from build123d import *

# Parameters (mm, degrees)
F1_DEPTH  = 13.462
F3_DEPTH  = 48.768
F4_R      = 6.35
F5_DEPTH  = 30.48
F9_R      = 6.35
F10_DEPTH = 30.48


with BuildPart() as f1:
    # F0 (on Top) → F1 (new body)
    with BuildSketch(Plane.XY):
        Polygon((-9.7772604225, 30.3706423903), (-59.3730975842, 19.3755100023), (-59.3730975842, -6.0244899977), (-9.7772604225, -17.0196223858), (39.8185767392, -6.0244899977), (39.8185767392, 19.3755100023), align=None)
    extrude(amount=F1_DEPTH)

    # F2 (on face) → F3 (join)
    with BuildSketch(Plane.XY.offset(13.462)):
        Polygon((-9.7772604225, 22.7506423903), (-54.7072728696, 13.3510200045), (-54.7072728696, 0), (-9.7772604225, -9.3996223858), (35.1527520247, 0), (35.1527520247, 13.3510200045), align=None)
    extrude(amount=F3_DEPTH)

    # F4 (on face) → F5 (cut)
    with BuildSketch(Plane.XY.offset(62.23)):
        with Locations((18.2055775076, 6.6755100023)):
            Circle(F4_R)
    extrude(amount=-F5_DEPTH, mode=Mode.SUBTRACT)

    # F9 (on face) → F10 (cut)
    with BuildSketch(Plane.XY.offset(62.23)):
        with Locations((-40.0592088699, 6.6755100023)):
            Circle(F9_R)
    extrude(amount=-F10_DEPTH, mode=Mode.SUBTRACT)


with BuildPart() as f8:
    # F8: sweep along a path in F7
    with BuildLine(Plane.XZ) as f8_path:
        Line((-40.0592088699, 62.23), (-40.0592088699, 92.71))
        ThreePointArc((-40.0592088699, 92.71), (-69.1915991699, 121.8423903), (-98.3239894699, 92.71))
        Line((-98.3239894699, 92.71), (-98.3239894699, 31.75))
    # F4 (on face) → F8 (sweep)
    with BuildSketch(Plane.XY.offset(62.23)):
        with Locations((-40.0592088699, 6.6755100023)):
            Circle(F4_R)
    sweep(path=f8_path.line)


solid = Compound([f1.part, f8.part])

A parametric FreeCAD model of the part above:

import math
import FreeCAD as App
import Part
import Sketcher
from FreeCAD import Vector
Q = App.Units.Quantity


def add_polygon(sketch, points):
    """Adds a closed chain of lines whose ends are joined by coincident constraints."""
    first, n = sketch.GeometryCount, len(points)
    for a, b in zip(points, points[1:] + points[:1]):
        sketch.addGeometry(Part.LineSegment(App.Vector(*a, 0), App.Vector(*b, 0)), False)
    for i in range(n):
        sketch.addConstraint(Sketcher.Constraint("Coincident", first + i, 2, first + (i + 1) % n, 1))

doc = App.newDocument("Part")
params = doc.addObject("Spreadsheet::Sheet", "Params")
for row, (alias, value) in enumerate([
    ("sketch1_height", "1 in"),
    ("sketch1_length", "2 in"),
    ("pad1_length", "0.53 in"),
    ("pad2_length", "1.92 in"),
    ("sketch3_diameter", "0.5 in"),
    ("pocket1_length", "1.2 in"),
    ("sketch4_diameter", "0.5 in"),
    ("pocket2_length", "1.2 in"),
    ("sketch5_diameter", "0.5 in"),
    ("sketch6_height", "1.2 in"),
    ("sketch6_height2", "2.4 in"),
], start=1):
    params.set(f"A{row}", alias)
    params.set(f"B{row}", "=" + value)
    params.setAlias(f"B{row}", alias)

body = doc.addObject("PartDesign::Body", "Body")

sketch1 = body.newObject("Sketcher::SketchObject", "Sketch")
sketch1.AttachmentSupport = (doc.getObject("XY_Plane"), [""])
sketch1.MapMode = "FlatFace"
add_polygon(sketch1, [(-9.77726, 30.370642), (-59.373098, 19.37551), (-59.373098, -6.02449), (-9.77726, -17.019622), (39.818577, -6.02449), (39.818577, 19.37551)])
sketch1.addConstraint(Sketcher.Constraint("Vertical", 1))
sketch1.addConstraint(Sketcher.Constraint("Vertical", 4))
sketch1.addConstraint(Sketcher.Constraint("Parallel", 0, 3))
sketch1.addConstraint(Sketcher.Constraint("Parallel", 2, 5))
sketch1.addConstraint(Sketcher.Constraint("Horizontal", 1, 2, 3, 2))
sketch1.addConstraint(Sketcher.Constraint("Horizontal", 0, 2, 4, 2))
sketch1.addConstraint(Sketcher.Constraint("Vertical", 2, 2, 5, 2))
sketch1.addConstraint(Sketcher.Constraint("DistanceY", 1, 2, 1, 1, Q("1 in")))
sketch1.addConstraint(Sketcher.Constraint("Distance", 0, Q("2 in")))
sketch1.addConstraint(Sketcher.Constraint("Angle", 0, Q("-167.5 deg")))
sketch1.addConstraint(Sketcher.Constraint("DistanceY", -1, 1, 0, 2, 19.37551))
sketch1.addConstraint(Sketcher.Constraint("DistanceX", 2, 2, -1, 1, 9.77726))
sketch1.setExpression("Constraints[13]", "Params.sketch1_height")
sketch1.setExpression("Constraints[14]", "Params.sketch1_length")
pad1 = body.newObject("PartDesign::Pad", "Pad")
pad1.Profile = sketch1
pad1.setExpression("Length", "Params.pad1_length")

sketch2 = body.newObject("Sketcher::SketchObject", "Sketch001")
sketch2.AttachmentSupport = (doc.getObject("XY_Plane"), [""])
sketch2.MapMode = "FlatFace"
sketch2.AttachmentOffset = App.Placement(Vector(0, 0, 0.53 * 25.4), App.Rotation())
add_polygon(sketch2, [(-9.77726, 22.750642), (-54.707273, 13.35102), (-54.707273, 0), (-9.77726, -9.399622), (35.152752, 0), (35.152752, 13.35102)])
sketch2.addConstraint(Sketcher.Constraint("Vertical", 1))
sketch2.addConstraint(Sketcher.Constraint("Vertical", 4))
sketch2.addConstraint(Sketcher.Constraint("PointOnObject", 1, 2, -1))
sketch2.addConstraint(Sketcher.Constraint("PointOnObject", 3, 2, -1))
sketch2.addConstraint(Sketcher.Constraint("Parallel", 0, 3))
sketch2.addConstraint(Sketcher.Constraint("Parallel", 2, 5))
sketch2.addConstraint(Sketcher.Constraint("Horizontal", 0, 2, 4, 2))
sketch2.addConstraint(Sketcher.Constraint("Vertical", 2, 2, 5, 2))
sketch2.addConstraint(Sketcher.Constraint("DistanceY", 1, 2, 1, 1, 13.35102))
sketch2.addConstraint(Sketcher.Constraint("Distance", 0, 45.902711))
sketch2.addConstraint(Sketcher.Constraint("DistanceX", 2, 2, -1, 1, 9.77726))
sketch2.addConstraint(Sketcher.Constraint("DistanceX", 0, 2, -1, 1, 54.707273))
pad2 = body.newObject("PartDesign::Pad", "Pad001")
pad2.Profile = sketch2
pad2.setExpression("Length", "Params.pad2_length")

sketch3 = body.newObject("Sketcher::SketchObject", "Sketch002")
sketch3.AttachmentSupport = (doc.getObject("XY_Plane"), [""])
sketch3.MapMode = "FlatFace"
sketch3.AttachmentOffset = App.Placement(Vector(0, 0, 2.45 * 25.4), App.Rotation())
sketch3.addGeometry(Part.Circle(Vector(18.205578, 6.67551, 0), Vector(0, 0, 1), 6.35), False)
sketch3.addConstraint(Sketcher.Constraint("Diameter", 0, Q("0.5 in")))
sketch3.addConstraint(Sketcher.Constraint("DistanceY", -1, 1, 0, 3, 6.67551))
sketch3.addConstraint(Sketcher.Constraint("DistanceX", -1, 1, 0, 3, 18.205578))
sketch3.setExpression("Constraints[0]", "Params.sketch3_diameter")
pocket1 = body.newObject("PartDesign::Pocket", "Pocket")
pocket1.Profile = sketch3
pocket1.setExpression("Length", "Params.pocket1_length")

sketch4 = body.newObject("Sketcher::SketchObject", "Sketch003")
sketch4.AttachmentSupport = (doc.getObject("XY_Plane"), [""])
sketch4.MapMode = "FlatFace"
sketch4.AttachmentOffset = App.Placement(Vector(0, 0, 2.45 * 25.4), App.Rotation())
sketch4.addGeometry(Part.Circle(Vector(-40.059209, 6.67551, 0), Vector(0, 0, 1), 6.35), False)
sketch4.addConstraint(Sketcher.Constraint("Diameter", 0, Q("0.5 in")))
sketch4.addConstraint(Sketcher.Constraint("DistanceX", 0, 3, -1, 1, 40.059209))
sketch4.addConstraint(Sketcher.Constraint("DistanceY", -1, 1, 0, 3, 6.67551))
sketch4.setExpression("Constraints[0]", "Params.sketch4_diameter")
pocket2 = body.newObject("PartDesign::Pocket", "Pocket001")
pocket2.Profile = sketch4
pocket2.setExpression("Length", "Params.pocket2_length")
body2 = doc.addObject("PartDesign::Body", "Body001")

sketch5 = body2.newObject("Sketcher::SketchObject", "Sketch004")
sketch5.AttachmentSupport = (doc.getObject("XY_Plane001"), [""])
sketch5.MapMode = "FlatFace"
sketch5.AttachmentOffset = App.Placement(Vector(0, 0, 2.45 * 25.4), App.Rotation())
sketch5.addGeometry(Part.Circle(Vector(-40.059209, 6.67551, 0), Vector(0, 0, 1), 6.35), False)
sketch5.addConstraint(Sketcher.Constraint("Diameter", 0, Q("0.5 in")))
sketch5.addConstraint(Sketcher.Constraint("DistanceX", 0, 3, -1, 1, 40.059209))
sketch5.addConstraint(Sketcher.Constraint("DistanceY", -1, 1, 0, 3, 6.67551))
sketch5.setExpression("Constraints[0]", "Params.sketch5_diameter")

sketch6 = body2.newObject("Sketcher::SketchObject", "Sketch005")
sketch6.AttachmentSupport = (doc.getObject("XZ_Plane001"), [""])
sketch6.MapMode = "FlatFace"
sketch6.addGeometry(Part.LineSegment(Vector(-40.059209, 62.23, 0), Vector(-40.059209, 92.71, 0)), False)
sketch6.addGeometry(Part.ArcOfCircle(Part.Circle(Vector(-69.191599, 92.71, 0), Vector(0, 0, 1), 29.13239), math.radians(0), math.radians(180)), False)
sketch6.addGeometry(Part.LineSegment(Vector(-98.323989, 92.71, 0), Vector(-98.323989, 31.75, 0)), False)
sketch6.addConstraint(Sketcher.Constraint("Tangent", 0, 2, 1, 1))
sketch6.addConstraint(Sketcher.Constraint("Tangent", 1, 2, 2, 1))
sketch6.addConstraint(Sketcher.Constraint("Vertical", 0))
sketch6.addConstraint(Sketcher.Constraint("Vertical", 2))
sketch6.addConstraint(Sketcher.Constraint("DistanceY", 0, 1, 0, 2, Q("1.2 in")))
sketch6.addConstraint(Sketcher.Constraint("DistanceY", 2, 2, 2, 1, Q("2.4 in")))
sketch6.addConstraint(Sketcher.Constraint("DistanceY", -1, 1, 1, 3, Q("3.65 in")))
sketch6.addConstraint(Sketcher.Constraint("Radius", 1, 29.13239))
sketch6.addConstraint(Sketcher.Constraint("DistanceX", 1, 3, -1, 1, 69.191599))
sketch6.setExpression("Constraints[4]", "Params.sketch6_height")
sketch6.setExpression("Constraints[5]", "Params.sketch6_height2")
doc.recompute()

additivepipe = body2.newObject("PartDesign::AdditivePipe", "AdditivePipe")
additivepipe.Profile = sketch5
additivepipe.Spine = (sketch6, ["Edge1", "Edge2", "Edge3"])

doc.recompute()
